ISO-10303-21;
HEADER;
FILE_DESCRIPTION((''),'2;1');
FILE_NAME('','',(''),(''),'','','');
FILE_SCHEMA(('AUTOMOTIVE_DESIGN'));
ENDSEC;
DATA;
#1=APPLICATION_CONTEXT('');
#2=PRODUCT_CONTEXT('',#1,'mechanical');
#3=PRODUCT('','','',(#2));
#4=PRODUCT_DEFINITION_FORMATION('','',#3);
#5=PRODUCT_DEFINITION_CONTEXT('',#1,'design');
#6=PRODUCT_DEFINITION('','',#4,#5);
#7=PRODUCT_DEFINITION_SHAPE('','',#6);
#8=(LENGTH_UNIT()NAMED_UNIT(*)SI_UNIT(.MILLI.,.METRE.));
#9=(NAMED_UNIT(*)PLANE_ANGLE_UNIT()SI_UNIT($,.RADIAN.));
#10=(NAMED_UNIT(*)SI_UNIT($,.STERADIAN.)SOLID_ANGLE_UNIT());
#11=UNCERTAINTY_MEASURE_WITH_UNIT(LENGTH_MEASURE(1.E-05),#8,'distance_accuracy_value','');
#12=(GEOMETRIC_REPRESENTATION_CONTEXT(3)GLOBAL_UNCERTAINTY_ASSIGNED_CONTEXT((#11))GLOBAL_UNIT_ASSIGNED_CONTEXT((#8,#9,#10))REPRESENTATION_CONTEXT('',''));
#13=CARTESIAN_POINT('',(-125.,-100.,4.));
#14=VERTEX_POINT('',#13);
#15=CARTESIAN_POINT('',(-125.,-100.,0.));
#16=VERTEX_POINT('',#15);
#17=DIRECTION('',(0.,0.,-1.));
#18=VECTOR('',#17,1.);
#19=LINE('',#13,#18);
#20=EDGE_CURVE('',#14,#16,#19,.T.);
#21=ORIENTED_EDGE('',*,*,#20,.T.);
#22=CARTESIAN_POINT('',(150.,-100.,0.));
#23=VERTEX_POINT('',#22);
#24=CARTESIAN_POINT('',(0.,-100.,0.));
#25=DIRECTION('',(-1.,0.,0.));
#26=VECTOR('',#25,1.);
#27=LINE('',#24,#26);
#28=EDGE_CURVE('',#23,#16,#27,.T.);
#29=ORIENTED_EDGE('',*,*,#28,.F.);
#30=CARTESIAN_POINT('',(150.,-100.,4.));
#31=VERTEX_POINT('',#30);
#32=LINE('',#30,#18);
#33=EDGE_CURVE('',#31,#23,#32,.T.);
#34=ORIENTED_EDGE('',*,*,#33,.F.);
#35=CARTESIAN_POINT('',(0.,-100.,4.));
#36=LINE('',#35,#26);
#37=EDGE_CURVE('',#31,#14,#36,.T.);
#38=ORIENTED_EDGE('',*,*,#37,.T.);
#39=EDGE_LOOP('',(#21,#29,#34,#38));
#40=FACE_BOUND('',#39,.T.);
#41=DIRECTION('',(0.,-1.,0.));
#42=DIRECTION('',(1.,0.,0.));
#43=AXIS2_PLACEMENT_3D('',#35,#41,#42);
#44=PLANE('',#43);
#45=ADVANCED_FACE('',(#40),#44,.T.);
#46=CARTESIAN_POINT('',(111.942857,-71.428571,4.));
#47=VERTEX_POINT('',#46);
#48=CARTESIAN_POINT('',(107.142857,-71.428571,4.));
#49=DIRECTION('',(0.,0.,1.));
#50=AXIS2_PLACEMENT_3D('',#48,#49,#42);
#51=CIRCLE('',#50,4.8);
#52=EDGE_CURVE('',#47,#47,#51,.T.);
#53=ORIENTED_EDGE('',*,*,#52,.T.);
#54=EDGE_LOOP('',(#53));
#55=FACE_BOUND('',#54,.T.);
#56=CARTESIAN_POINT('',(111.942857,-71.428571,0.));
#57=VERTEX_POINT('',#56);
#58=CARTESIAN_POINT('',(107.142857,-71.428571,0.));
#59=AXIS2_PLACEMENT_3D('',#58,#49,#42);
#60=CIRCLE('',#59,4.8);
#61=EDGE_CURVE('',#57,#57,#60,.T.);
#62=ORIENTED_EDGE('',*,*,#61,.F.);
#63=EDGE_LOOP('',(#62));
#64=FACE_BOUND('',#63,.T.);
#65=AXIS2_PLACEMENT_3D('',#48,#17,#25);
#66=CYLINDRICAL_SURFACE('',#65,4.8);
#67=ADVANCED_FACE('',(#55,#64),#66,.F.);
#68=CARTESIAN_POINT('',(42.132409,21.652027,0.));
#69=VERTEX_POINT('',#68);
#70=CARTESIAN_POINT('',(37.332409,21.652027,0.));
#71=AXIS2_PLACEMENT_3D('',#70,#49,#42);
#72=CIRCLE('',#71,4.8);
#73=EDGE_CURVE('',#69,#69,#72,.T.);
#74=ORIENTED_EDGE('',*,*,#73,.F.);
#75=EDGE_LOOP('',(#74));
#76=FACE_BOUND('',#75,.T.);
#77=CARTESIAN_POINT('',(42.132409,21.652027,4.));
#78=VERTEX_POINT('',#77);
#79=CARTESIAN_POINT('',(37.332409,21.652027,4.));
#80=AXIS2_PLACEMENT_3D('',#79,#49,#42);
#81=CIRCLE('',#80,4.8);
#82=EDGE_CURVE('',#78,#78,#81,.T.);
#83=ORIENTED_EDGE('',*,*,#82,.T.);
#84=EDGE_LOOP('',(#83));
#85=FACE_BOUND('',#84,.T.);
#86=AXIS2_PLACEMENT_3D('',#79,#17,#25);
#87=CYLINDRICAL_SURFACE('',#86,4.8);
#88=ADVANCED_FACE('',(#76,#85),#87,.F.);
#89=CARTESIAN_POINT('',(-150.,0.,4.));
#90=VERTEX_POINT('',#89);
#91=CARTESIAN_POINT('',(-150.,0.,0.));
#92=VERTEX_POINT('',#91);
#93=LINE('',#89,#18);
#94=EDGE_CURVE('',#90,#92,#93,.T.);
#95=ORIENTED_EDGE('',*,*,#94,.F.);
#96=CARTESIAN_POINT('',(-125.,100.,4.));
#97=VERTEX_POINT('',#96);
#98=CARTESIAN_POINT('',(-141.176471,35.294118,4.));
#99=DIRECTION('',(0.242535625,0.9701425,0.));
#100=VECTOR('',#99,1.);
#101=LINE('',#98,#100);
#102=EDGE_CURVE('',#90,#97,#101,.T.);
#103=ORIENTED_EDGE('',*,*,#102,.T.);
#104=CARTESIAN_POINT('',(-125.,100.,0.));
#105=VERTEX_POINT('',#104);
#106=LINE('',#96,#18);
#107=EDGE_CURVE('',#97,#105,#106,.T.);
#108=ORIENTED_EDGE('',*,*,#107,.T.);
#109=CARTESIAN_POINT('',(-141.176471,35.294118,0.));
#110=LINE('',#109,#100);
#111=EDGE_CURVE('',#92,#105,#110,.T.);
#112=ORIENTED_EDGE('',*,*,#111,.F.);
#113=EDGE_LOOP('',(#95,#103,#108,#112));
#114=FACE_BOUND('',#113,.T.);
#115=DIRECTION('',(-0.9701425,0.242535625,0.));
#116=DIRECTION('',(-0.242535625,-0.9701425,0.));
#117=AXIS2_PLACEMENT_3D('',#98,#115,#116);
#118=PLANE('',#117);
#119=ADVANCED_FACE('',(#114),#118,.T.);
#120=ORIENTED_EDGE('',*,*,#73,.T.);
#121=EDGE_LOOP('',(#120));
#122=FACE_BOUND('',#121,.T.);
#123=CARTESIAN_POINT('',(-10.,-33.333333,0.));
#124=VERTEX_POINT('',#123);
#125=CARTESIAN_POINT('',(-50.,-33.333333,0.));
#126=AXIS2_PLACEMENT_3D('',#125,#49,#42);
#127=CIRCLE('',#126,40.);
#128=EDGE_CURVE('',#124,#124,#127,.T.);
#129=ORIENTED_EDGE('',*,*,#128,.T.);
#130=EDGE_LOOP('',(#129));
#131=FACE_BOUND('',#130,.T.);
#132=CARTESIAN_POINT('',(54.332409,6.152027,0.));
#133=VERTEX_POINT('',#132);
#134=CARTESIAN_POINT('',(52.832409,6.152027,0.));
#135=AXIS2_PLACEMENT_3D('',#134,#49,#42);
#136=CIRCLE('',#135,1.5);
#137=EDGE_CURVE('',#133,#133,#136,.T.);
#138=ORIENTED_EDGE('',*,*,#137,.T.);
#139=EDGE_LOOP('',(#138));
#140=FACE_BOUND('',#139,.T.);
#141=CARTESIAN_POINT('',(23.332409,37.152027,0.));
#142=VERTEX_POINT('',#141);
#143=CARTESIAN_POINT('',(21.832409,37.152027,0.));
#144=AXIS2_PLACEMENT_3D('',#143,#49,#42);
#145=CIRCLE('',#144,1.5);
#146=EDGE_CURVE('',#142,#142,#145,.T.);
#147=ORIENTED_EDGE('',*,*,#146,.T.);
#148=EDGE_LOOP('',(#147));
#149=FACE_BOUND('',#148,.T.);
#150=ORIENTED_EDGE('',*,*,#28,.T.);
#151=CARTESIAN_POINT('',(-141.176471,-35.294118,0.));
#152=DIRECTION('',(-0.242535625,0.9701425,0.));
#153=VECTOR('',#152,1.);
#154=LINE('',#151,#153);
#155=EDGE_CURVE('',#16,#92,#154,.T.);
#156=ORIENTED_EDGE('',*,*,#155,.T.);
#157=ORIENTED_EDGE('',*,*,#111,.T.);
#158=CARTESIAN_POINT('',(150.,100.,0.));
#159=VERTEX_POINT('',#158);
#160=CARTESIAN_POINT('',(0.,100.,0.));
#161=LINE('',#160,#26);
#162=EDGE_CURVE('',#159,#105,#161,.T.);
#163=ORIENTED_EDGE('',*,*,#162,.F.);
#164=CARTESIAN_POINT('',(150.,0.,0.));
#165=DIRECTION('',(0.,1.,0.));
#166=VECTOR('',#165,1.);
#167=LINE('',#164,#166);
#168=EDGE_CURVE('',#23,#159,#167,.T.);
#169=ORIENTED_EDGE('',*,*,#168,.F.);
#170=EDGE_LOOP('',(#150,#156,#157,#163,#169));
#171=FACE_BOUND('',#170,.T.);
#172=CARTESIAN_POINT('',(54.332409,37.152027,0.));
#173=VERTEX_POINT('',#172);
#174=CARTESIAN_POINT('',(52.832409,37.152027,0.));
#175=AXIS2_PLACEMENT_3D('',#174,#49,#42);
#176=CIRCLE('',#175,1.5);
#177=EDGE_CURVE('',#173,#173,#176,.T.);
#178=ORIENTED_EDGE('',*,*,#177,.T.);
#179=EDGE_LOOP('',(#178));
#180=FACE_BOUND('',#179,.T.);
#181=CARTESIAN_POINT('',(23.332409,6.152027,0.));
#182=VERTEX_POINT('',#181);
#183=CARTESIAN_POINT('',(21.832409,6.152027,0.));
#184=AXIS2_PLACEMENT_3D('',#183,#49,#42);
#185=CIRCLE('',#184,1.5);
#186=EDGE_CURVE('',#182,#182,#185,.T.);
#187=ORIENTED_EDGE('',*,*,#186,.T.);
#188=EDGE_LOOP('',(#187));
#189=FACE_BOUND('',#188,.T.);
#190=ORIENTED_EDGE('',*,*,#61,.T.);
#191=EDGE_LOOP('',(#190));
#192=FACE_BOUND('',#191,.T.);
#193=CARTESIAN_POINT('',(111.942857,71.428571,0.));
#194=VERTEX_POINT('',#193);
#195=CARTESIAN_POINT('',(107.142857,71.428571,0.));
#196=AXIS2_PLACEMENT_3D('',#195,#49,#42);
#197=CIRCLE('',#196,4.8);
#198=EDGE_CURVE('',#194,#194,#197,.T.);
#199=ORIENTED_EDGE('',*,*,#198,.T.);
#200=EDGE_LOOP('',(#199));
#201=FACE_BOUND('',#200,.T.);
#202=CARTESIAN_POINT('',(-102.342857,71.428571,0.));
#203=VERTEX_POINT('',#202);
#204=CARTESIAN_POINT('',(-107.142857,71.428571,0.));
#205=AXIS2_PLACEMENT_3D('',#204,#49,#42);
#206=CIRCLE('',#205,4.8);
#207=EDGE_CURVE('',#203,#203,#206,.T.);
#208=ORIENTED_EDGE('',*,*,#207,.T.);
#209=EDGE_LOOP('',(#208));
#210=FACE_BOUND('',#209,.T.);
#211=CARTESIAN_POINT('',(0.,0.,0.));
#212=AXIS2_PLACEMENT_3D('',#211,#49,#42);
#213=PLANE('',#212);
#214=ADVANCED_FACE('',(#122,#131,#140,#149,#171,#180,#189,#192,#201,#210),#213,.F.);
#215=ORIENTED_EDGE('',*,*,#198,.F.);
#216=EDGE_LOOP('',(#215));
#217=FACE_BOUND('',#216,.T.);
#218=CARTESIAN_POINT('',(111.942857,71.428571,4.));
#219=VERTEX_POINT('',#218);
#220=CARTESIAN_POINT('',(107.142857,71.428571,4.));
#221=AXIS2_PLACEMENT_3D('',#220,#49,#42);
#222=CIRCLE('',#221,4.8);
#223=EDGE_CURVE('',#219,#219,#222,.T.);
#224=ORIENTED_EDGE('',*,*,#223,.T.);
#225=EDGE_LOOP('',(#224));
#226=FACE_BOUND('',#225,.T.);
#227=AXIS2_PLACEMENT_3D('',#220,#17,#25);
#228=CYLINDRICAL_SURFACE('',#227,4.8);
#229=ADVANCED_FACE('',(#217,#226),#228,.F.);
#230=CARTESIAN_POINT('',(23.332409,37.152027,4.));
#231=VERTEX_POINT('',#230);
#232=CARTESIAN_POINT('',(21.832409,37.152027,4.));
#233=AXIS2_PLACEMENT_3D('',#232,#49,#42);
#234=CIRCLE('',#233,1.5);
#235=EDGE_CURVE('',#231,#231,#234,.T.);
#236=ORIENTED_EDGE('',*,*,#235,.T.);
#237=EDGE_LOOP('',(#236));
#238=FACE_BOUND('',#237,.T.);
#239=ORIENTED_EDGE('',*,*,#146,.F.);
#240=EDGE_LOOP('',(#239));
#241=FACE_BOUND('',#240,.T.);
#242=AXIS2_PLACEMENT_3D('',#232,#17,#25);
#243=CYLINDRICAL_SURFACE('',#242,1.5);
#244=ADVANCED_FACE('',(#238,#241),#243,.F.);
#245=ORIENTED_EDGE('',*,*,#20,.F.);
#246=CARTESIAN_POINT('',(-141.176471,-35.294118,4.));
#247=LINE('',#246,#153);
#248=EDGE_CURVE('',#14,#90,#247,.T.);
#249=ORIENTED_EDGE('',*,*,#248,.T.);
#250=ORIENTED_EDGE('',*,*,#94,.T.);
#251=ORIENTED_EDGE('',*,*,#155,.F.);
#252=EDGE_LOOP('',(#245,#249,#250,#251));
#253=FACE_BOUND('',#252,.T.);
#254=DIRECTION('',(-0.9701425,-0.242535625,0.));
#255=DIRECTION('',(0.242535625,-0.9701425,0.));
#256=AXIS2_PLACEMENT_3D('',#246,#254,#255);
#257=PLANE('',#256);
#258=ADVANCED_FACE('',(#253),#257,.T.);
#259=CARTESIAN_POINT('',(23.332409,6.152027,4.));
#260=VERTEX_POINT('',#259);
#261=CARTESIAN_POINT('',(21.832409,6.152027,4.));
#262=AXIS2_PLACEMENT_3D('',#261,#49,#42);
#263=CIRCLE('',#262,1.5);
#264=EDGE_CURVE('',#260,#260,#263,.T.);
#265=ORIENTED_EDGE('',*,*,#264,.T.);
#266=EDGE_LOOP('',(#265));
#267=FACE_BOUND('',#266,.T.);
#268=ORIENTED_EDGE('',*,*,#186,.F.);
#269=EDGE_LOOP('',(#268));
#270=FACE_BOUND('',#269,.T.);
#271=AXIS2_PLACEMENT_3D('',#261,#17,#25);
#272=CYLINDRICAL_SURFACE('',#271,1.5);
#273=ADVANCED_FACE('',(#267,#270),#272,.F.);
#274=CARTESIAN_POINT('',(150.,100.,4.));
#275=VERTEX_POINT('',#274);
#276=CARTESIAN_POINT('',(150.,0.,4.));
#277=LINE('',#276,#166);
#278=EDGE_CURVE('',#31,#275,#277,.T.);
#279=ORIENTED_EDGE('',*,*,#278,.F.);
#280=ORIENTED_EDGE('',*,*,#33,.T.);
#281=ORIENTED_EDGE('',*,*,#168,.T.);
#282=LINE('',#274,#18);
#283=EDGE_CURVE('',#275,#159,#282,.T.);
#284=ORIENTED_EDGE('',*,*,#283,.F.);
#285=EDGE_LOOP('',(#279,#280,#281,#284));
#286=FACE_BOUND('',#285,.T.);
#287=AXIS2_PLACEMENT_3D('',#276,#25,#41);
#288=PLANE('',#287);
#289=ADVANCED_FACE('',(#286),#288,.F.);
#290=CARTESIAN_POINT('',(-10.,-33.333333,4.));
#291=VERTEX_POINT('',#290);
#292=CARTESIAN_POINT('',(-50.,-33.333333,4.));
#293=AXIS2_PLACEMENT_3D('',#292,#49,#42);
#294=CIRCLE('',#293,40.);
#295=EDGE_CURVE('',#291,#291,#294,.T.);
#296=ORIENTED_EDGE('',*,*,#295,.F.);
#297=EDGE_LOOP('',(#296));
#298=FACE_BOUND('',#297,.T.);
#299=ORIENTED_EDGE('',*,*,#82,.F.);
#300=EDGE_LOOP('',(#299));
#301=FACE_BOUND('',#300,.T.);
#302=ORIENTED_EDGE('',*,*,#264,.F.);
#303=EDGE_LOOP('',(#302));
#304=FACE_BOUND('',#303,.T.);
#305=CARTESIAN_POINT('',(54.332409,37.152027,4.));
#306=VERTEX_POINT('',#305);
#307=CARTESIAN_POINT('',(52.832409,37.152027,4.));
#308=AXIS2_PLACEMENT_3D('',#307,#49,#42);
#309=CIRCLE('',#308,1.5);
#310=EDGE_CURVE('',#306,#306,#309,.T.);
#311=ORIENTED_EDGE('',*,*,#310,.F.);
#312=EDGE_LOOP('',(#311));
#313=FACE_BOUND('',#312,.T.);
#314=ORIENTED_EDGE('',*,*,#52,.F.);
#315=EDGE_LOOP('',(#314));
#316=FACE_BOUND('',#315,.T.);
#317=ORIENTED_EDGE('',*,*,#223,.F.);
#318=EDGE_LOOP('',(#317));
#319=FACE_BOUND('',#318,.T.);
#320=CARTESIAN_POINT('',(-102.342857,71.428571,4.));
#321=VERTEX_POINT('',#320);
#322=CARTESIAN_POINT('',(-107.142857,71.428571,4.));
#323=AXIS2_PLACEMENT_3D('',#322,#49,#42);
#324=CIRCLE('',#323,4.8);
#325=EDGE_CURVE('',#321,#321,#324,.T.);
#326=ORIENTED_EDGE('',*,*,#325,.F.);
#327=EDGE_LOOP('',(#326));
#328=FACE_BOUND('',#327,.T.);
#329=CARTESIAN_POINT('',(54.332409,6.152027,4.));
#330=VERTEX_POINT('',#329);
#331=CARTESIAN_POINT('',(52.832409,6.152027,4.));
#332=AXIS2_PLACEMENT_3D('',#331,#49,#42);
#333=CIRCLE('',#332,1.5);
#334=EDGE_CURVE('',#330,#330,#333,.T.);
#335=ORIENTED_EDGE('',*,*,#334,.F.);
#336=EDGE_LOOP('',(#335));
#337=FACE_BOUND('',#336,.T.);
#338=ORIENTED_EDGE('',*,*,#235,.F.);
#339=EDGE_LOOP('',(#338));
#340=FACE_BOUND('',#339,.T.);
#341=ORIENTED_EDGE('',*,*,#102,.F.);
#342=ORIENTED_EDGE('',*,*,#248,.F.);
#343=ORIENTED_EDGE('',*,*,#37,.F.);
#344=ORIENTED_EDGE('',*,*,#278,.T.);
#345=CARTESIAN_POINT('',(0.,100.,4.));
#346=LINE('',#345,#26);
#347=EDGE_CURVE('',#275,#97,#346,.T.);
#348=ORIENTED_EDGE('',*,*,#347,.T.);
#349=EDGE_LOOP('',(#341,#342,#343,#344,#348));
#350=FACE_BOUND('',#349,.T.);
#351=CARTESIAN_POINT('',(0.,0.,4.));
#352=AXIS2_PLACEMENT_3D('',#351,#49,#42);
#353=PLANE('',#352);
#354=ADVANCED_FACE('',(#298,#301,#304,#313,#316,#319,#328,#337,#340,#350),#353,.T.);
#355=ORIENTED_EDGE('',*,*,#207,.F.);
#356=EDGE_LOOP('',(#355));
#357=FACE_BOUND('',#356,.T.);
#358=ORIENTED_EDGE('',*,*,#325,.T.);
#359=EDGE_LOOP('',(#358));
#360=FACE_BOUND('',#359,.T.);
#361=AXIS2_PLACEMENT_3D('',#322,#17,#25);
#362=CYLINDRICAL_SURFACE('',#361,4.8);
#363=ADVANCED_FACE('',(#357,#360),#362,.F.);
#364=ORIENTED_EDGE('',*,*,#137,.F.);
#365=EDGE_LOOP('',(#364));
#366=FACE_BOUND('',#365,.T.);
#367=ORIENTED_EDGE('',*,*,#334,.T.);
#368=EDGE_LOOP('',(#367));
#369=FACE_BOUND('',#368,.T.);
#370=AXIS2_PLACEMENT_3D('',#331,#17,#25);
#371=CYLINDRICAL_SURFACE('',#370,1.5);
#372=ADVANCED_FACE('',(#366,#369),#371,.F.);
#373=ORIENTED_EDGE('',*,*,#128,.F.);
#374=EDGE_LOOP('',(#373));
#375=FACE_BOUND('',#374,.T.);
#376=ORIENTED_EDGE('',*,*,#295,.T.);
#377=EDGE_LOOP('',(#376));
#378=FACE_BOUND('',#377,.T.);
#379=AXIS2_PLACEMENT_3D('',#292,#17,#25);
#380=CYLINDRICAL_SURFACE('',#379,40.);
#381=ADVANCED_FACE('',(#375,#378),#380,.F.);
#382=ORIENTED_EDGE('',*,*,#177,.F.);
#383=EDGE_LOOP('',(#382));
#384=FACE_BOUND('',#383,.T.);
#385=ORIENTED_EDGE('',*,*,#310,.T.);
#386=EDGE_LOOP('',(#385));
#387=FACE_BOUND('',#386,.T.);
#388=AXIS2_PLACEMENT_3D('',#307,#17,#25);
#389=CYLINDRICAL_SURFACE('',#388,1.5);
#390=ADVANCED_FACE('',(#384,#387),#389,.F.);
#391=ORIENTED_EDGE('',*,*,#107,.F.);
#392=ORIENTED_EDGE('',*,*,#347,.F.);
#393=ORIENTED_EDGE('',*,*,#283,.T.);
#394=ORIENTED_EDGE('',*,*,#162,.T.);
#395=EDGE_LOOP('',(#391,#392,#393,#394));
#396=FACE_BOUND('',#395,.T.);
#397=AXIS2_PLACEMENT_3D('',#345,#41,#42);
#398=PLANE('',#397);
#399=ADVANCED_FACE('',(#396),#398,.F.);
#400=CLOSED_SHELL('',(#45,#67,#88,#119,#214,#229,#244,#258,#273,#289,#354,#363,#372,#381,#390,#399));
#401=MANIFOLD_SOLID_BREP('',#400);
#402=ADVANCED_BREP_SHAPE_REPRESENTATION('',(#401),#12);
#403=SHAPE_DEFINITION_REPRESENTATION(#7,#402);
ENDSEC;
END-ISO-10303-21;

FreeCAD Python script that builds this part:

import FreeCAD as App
import Part
import Sketcher

V = App.Vector
Q = App.Units.Quantity

doc = App.newDocument("Part")
body = doc.addObject("PartDesign::Body", "Body")

sketch1 = body.newObject("Sketcher::SketchObject", "Sketch")
sketch1.AttachmentSupport = (doc.getObject("XY_Plane"), [""])
sketch1.MapMode = "FlatFace"
sketch1.addGeometry([
    Part.LineSegment(V(-125, -100, 0), V(150, -100, 0)),
    Part.LineSegment(V(150, -100, 0), V(150, 100, 0)),
    Part.LineSegment(V(150, 100, 0), V(-125, 100, 0)),
    Part.LineSegment(V(-125, 100, 0), V(-150, 0, 0)),
    Part.LineSegment(V(-150, 0, 0), V(-125, -100, 0)),
    Part.Circle(V(-50, -33.333333, 0), V(0, 0, 1), 40),
    Part.Circle(V(107.142857, -71.428571, 0), V(0, 0, 1), 4.8),
    Part.Circle(V(-107.142857, 71.428571, 0), V(0, 0, 1), 4.8),
    Part.Circle(V(21.832409, 6.152027, 0), V(0, 0, 1), 1.5),
    Part.Circle(V(52.832409, 6.152027, 0), V(0, 0, 1), 1.5),
    Part.Circle(V(21.832409, 37.152027, 0), V(0, 0, 1), 1.5),
    Part.Circle(V(37.332409, 21.652027, 0), V(0, 0, 1), 4.8),
    Part.Circle(V(52.832409, 37.152027, 0), V(0, 0, 1), 1.5),
    Part.Circle(V(107.142857, 71.428571, 0), V(0, 0, 1), 4.8),
], False)
sketch1.addConstraint([
    Sketcher.Constraint("Coincident", 0, 2, 1, 1),
    Sketcher.Constraint("Coincident", 1, 2, 2, 1),
    Sketcher.Constraint("Coincident", 2, 2, 3, 1),
    Sketcher.Constraint("Coincident", 3, 2, 4, 1),
    Sketcher.Constraint("Coincident", 4, 2, 0, 1),
    Sketcher.Constraint("Horizontal", 0),
    Sketcher.Constraint("Vertical", 1),
    Sketcher.Constraint("Horizontal", 2),
    Sketcher.Constraint("Equal", 6, 7),
    Sketcher.Constraint("Equal", 8, 9),
    Sketcher.Constraint("Equal", 9, 10),
    Sketcher.Constraint("Equal", 7, 11),
    Sketcher.Constraint("Equal", 10, 12),
    Sketcher.Constraint("Equal", 11, 13),
    Sketcher.Constraint("Symmetric", 6, 3, 7, 3, -1, 1),
    Sketcher.Constraint("Symmetric", 7, 3, 13, 3, -2),
    Sketcher.Constraint("Symmetric", 2, 2, 4, 2, -1),
    Sketcher.Constraint("PointOnObject", 3, 2, -1),
    Sketcher.Constraint("Horizontal", 8, 3, 9, 3),
    Sketcher.Constraint("Horizontal", 10, 3, 12, 3),
    Sketcher.Constraint("Vertical", 8, 3, 10, 3),
    Sketcher.Constraint("Vertical", 9, 3, 12, 3),
    Sketcher.Constraint("Diameter", 5, Q("80 mm")),
    Sketcher.Constraint("Diameter", 8, Q("3 mm")),
    Sketcher.Constraint("Diameter", 6, Q("9.6 mm")),
    Sketcher.Constraint("DistanceX", 0, 1, 0, 2, Q("275 mm")),
    Sketcher.Constraint("DistanceY", 1, 1, 1, 2, Q("200 mm")),
    Sketcher.Constraint("DistanceX", 5, 3, -1, 1, Q("50 mm")),
    Sketcher.Constraint("DistanceX", -1, 1, 0, 2, Q("150 mm")),
    Sketcher.Constraint("DistanceX", 3, 2, -1, 1, Q("150 mm")),
    Sketcher.Constraint("DistanceX", 8, 3, 9, 3, Q("31 mm")),
    Sketcher.Constraint("DistanceY", 8, 3, 10, 3, Q("31 mm")),
    Sketcher.Constraint("DistanceX", 8, 3, 11, 3, Q("15.5 mm")),
    Sketcher.Constraint("DistanceY", 8, 3, 11, 3, Q("15.5 mm")),
    Sketcher.Constraint("DistanceY", 6, 3, -1, 1, Q("71.428571 mm")),
    Sketcher.Constraint("DistanceX", -1, 1, 8, 3, Q("21.832409 mm")),
    Sketcher.Constraint("DistanceY", 6, 3, 5, 3, Q("38.095238 mm")),
    Sketcher.Constraint("DistanceY", 5, 3, 8, 3, Q("39.48536 mm")),
    Sketcher.Constraint("DistanceX", 8, 3, 6, 3, Q("85.310448 mm")),
])
pad1 = body.newObject("PartDesign::Pad", "Pad")
pad1.Profile = sketch1
pad1.Length = 4

doc.recompute()
